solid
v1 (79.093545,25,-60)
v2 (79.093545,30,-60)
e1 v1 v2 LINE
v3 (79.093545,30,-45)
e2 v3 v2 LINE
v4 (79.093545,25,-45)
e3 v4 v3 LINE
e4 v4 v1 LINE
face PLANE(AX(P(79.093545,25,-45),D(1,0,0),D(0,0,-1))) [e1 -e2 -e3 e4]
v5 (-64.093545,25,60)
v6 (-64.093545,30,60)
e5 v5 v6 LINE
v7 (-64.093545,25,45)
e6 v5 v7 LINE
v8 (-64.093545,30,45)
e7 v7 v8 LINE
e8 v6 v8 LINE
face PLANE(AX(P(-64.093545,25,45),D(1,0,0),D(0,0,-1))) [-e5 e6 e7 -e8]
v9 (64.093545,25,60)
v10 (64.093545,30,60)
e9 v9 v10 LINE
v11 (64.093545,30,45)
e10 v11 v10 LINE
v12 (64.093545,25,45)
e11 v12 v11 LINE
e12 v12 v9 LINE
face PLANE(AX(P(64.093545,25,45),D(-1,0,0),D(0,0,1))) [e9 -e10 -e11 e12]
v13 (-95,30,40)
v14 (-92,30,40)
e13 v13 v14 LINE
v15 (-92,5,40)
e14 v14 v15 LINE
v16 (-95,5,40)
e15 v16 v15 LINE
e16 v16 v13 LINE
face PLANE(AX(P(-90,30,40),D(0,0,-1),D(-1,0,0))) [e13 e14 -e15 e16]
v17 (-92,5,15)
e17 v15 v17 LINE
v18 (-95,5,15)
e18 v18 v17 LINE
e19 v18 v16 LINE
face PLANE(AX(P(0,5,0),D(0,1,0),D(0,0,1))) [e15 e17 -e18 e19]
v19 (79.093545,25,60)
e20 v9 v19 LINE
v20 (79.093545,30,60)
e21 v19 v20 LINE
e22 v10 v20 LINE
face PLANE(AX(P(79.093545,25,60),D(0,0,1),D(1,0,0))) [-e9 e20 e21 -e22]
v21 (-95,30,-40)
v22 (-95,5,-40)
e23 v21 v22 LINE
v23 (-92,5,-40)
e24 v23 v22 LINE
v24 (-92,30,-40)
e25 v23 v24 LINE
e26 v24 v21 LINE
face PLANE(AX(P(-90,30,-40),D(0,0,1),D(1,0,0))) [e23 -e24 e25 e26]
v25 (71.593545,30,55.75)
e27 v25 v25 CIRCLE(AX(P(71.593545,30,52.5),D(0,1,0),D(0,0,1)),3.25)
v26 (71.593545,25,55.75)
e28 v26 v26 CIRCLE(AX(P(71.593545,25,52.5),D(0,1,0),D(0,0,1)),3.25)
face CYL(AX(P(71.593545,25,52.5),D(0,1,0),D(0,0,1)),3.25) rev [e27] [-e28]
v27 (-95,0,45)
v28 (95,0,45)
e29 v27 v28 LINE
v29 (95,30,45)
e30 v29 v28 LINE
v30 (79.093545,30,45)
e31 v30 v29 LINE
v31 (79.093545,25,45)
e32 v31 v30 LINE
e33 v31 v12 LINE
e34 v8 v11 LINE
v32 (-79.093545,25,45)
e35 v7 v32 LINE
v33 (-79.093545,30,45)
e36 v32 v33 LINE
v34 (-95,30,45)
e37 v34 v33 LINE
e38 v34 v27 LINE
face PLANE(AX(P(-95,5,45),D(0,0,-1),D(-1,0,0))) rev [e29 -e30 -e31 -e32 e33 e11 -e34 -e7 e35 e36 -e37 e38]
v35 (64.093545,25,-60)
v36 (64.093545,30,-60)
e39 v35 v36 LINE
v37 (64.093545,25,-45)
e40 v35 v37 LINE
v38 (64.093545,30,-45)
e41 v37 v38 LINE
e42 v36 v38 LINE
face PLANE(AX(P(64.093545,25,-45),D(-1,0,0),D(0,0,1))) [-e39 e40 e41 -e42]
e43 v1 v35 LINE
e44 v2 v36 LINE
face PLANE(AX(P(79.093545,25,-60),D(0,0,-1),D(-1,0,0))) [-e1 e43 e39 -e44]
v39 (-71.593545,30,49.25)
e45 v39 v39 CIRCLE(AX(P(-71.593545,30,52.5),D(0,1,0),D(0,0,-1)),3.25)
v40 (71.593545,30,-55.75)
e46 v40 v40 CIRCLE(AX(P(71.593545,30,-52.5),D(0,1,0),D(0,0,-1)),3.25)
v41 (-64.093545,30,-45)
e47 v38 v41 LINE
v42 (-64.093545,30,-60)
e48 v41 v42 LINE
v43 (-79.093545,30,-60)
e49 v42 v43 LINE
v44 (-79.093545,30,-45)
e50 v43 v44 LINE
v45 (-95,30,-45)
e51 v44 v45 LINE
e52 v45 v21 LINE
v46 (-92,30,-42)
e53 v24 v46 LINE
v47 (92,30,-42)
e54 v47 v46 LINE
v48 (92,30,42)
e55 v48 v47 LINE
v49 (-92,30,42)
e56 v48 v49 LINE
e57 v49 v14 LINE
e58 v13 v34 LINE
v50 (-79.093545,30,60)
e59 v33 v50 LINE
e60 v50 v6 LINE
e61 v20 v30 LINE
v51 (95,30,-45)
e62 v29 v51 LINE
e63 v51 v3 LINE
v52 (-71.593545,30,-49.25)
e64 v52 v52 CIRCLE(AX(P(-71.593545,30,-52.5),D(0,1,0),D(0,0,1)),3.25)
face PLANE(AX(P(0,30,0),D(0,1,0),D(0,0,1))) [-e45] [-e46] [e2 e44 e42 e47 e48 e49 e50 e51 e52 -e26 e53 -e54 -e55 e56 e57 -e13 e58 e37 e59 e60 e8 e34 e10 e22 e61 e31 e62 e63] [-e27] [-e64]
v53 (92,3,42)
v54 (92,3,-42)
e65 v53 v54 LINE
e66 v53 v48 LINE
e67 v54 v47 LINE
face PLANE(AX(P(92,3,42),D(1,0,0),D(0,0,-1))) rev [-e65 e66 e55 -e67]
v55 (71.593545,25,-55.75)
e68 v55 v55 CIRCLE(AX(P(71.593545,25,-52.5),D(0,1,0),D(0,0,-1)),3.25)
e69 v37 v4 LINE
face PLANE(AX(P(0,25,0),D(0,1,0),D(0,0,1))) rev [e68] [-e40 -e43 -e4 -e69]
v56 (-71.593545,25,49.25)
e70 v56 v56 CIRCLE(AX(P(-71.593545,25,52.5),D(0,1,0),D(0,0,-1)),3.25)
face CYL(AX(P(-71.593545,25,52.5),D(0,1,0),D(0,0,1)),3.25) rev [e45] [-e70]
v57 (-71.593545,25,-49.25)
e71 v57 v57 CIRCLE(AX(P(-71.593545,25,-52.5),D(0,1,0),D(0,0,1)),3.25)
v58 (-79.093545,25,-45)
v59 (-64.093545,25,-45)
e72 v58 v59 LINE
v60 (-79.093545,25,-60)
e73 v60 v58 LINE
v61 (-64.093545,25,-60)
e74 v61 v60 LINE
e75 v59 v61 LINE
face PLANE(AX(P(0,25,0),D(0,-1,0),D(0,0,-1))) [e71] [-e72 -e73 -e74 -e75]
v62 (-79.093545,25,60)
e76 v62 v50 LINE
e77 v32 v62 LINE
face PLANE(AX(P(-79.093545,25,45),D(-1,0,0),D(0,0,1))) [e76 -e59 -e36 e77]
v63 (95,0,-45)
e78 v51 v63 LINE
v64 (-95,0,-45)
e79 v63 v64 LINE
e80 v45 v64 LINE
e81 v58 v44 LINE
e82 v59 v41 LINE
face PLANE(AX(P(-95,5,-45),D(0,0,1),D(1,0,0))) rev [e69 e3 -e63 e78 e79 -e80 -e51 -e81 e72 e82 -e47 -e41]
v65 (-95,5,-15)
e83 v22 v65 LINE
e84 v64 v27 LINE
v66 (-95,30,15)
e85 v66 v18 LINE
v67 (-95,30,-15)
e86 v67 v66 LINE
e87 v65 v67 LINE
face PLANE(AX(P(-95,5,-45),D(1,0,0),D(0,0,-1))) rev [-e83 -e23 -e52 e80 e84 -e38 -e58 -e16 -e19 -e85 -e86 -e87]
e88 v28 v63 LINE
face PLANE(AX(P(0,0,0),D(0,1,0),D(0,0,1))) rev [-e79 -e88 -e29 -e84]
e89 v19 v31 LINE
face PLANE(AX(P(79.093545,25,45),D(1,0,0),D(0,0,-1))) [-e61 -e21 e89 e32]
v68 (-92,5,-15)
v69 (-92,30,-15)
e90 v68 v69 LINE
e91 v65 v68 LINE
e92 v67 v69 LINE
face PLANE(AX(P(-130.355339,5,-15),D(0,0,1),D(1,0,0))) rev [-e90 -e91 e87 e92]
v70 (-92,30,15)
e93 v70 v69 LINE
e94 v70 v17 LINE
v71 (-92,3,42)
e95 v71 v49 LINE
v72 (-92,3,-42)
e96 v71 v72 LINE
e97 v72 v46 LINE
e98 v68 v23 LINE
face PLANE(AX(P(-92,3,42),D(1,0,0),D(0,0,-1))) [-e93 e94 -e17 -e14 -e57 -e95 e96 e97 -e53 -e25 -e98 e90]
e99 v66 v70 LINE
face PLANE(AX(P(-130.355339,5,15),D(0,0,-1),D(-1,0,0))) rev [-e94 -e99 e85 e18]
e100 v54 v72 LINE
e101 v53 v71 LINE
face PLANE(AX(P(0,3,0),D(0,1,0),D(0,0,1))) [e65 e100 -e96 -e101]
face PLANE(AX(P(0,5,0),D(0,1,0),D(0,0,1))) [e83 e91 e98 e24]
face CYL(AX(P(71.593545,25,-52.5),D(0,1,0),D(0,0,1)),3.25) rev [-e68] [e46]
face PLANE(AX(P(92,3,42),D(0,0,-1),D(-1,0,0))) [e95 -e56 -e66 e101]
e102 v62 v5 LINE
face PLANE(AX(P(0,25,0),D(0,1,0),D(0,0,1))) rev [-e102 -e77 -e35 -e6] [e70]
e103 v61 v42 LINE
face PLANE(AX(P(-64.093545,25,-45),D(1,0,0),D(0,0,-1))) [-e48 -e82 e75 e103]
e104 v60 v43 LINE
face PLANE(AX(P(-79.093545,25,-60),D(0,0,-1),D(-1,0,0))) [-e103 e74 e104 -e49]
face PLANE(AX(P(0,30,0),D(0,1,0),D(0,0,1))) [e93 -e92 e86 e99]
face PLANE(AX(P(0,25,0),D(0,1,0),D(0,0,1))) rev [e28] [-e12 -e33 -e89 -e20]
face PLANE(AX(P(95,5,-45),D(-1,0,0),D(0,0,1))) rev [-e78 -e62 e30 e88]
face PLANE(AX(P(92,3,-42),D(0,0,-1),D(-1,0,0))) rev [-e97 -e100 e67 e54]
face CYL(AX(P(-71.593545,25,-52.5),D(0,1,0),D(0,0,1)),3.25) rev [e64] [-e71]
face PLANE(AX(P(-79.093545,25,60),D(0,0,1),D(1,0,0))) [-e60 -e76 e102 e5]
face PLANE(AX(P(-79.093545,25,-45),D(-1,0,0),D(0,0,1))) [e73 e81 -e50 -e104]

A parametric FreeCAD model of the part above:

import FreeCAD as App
import Part
import Sketcher
from FreeCAD import Vector

doc = App.newDocument("Part")
body = doc.addObject("PartDesign::Body", "Body")

# Sketch on XZ plane
sketch1 = doc.addObject("Sketcher::SketchObject", "Sketch")
body.addObject(sketch1)
sketch1.AttachmentSupport = (doc.XZ_Plane, [""])
sketch1.MapMode = "FlatFace"
sketch1.addGeometry([
    Part.LineSegment(Vector(-95, -45, 0), Vector(-95, 45, 0)),
    Part.LineSegment(Vector(-95, 45, 0), Vector(95, 45, 0)),
    Part.LineSegment(Vector(95, 45, 0), Vector(95, -45, 0)),
    Part.LineSegment(Vector(95, -45, 0), Vector(-95, -45, 0)),
], False)
sketch1.addConstraint([
    Sketcher.Constraint("Coincident", 0, 2, 1, 1),
    Sketcher.Constraint("Coincident", 1, 2, 2, 1),
    Sketcher.Constraint("Coincident", 2, 2, 3, 1),
    Sketcher.Constraint("Coincident", 3, 2, 0, 1),
    Sketcher.Constraint("Vertical", 0),
    Sketcher.Constraint("Horizontal", 1),
    Sketcher.Constraint("Vertical", 2),
    Sketcher.Constraint("Horizontal", 3),
    Sketcher.Constraint("Symmetric", 0, 2, 2, 2, -1, 1),
    Sketcher.Constraint("DistanceX", 1, 1, 1, 2, 190.0),
    Sketcher.Constraint("DistanceY", 0, 1, 0, 2, 90.0),
])
pad1 = doc.addObject("PartDesign::Pad", "Pad")
body.addObject(pad1)
pad1.Profile = sketch1
pad1.Length = 5
pad1.Reversed = True

# Sketch on XZ plane
sketch2 = doc.addObject("Sketcher::SketchObject", "Sketch001")
body.addObject(sketch2)
sketch2.AttachmentSupport = (doc.XZ_Plane, [""])
sketch2.MapMode = "FlatFace"
sketch2.AttachmentOffset = App.Placement(Vector(0, 0, -5), App.Rotation())
sketch2.addGeometry([
    Part.LineSegment(Vector(-95, -45, 0), Vector(-95, 45, 0)),  # 0
    Part.LineSegment(Vector(-95, 45, 0), Vector(95, 45, 0)),  # 1
    Part.LineSegment(Vector(95, 45, 0), Vector(95, -45, 0)),  # 2
    Part.LineSegment(Vector(95, -45, 0), Vector(-95, -45, 0)),  # 3
    Part.LineSegment(Vector(90, 40, 0), Vector(-90, 40, 0)),  # 4
    Part.LineSegment(Vector(-90, 40, 0), Vector(-90, -40, 0)),  # 5
    Part.LineSegment(Vector(-90, -40, 0), Vector(90, -40, 0)),  # 6
    Part.LineSegment(Vector(90, -40, 0), Vector(90, 40, 0)),  # 7
], False)
sketch2.addConstraint([
    Sketcher.Constraint("Coincident", 0, 2, 1, 1),
    Sketcher.Constraint("Coincident", 1, 2, 2, 1),
    Sketcher.Constraint("Coincident", 2, 2, 3, 1),
    Sketcher.Constraint("Coincident", 3, 2, 0, 1),
    Sketcher.Constraint("Coincident", 4, 2, 5, 1),
    Sketcher.Constraint("Coincident", 5, 2, 6, 1),
    Sketcher.Constraint("Coincident", 6, 2, 7, 1),
    Sketcher.Constraint("Coincident", 7, 2, 4, 1),
    Sketcher.Constraint("Vertical", 0),
    Sketcher.Constraint("Horizontal", 1),
    Sketcher.Constraint("Vertical", 2),
    Sketcher.Constraint("Horizontal", 3),
    Sketcher.Constraint("Horizontal", 4),
    Sketcher.Constraint("Vertical", 5),
    Sketcher.Constraint("Horizontal", 6),
    Sketcher.Constraint("Vertical", 7),
    Sketcher.Constraint("Symmetric", 0, 2, 2, 2, -1, 1),
    Sketcher.Constraint("Symmetric", 4, 2, 6, 2, -1, 1),
    Sketcher.Constraint("DistanceX", 1, 1, 1, 2, 190.0),
    Sketcher.Constraint("DistanceX", 4, 2, 4, 1, 180.0),
    Sketcher.Constraint("DistanceY", 0, 1, 0, 2, 90.0),
    Sketcher.Constraint("DistanceY", 5, 2, 5, 1, 80.0),
])
pad2 = doc.addObject("PartDesign::Pad", "Pad001")
body.addObject(pad2)
pad2.Profile = sketch2
pad2.Length = 25
pad2.Reversed = True

# Sketch on YZ plane
sketch3 = doc.addObject("Sketcher::SketchObject", "Sketch002")
body.addObject(sketch3)
sketch3.AttachmentSupport = (doc.YZ_Plane, [""])
sketch3.MapMode = "FlatFace"
sketch3.AttachmentOffset = App.Placement(Vector(0, 0, -90), App.Rotation())
sketch3.addGeometry([
    Part.LineSegment(Vector(30, 40, 0), Vector(5, 40, 0)),  # 0
    Part.LineSegment(Vector(5, 40, 0), Vector(5, 15, 0)),  # 1
    Part.LineSegment(Vector(5, 15, 0), Vector(30, 15, 0)),  # 2
    Part.LineSegment(Vector(30, 15, 0), Vector(30, 40, 0)),  # 3
    Part.LineSegment(Vector(30, -15, 0), Vector(5, -15, 0)),  # 4
    Part.LineSegment(Vector(5, -15, 0), Vector(5, -40, 0)),  # 5
    Part.LineSegment(Vector(5, -40, 0), Vector(30, -40, 0)),  # 6
    Part.LineSegment(Vector(30, -40, 0), Vector(30, -15, 0)),  # 7
], False)
sketch3.addConstraint([
    Sketcher.Constraint("Coincident", 0, 2, 1, 1),
    Sketcher.Constraint("Coincident", 1, 2, 2, 1),
    Sketcher.Constraint("Coincident", 2, 2, 3, 1),
    Sketcher.Constraint("Coincident", 3, 2, 0, 1),
    Sketcher.Constraint("Coincident", 4, 2, 5, 1),
    Sketcher.Constraint("Coincident", 5, 2, 6, 1),
    Sketcher.Constraint("Coincident", 6, 2, 7, 1),
    Sketcher.Constraint("Coincident", 7, 2, 4, 1),
    Sketcher.Constraint("Horizontal", 0),
    Sketcher.Constraint("Vertical", 1),
    Sketcher.Constraint("Horizontal", 2),
    Sketcher.Constraint("Vertical", 3),
    Sketcher.Constraint("Horizontal", 4),
    Sketcher.Constraint("Vertical", 5),
    Sketcher.Constraint("Horizontal", 6),
    Sketcher.Constraint("Vertical", 7),
    Sketcher.Constraint("Symmetric", 1, 2, 4, 2, -1),
    Sketcher.Constraint("Symmetric", 3, 2, 6, 2, -1),
    Sketcher.Constraint("Equal", 6, 1),
    Sketcher.Constraint("DistanceX", 0, 2, 0, 1, 25.0),
    Sketcher.Constraint("DistanceX", -1, 1, 0, 2, 5.0),
    Sketcher.Constraint("DistanceY", -1, 1, 0, 2, 40.0),
])
pocket1 = doc.addObject("PartDesign::Pocket", "Pocket")
body.addObject(pocket1)
pocket1.Profile = sketch3
pocket1.Length = 5

# Sketch on XZ plane
sketch4 = doc.addObject("Sketcher::SketchObject", "Sketch003")
body.addObject(sketch4)
sketch4.AttachmentSupport = (doc.XZ_Plane, [""])
sketch4.MapMode = "FlatFace"
sketch4.AttachmentOffset = App.Placement(Vector(0, 0, -30), App.Rotation())
sketch4.addGeometry([
    Part.LineSegment(Vector(-79.1, -60, 0), Vector(-79.1, -45, 0)),  # 0
    Part.LineSegment(Vector(-79.1, -45, 0), Vector(-64.1, -45, 0)),  # 1
    Part.LineSegment(Vector(-64.1, -45, 0), Vector(-64.1, -60, 0)),  # 2
    Part.LineSegment(Vector(-64.1, -60, 0), Vector(-79.1, -60, 0)),  # 3
    Part.Circle(Vector(-71.6, -52.5, 0), Vector(0, 0, 1), 3.2),  # 4
    Part.LineSegment(Vector(-79.1, 45, 0), Vector(-79.1, 60, 0)),  # 5
    Part.LineSegment(Vector(-79.1, 60, 0), Vector(-64.1, 60, 0)),  # 6
    Part.LineSegment(Vector(-64.1, 60, 0), Vector(-64.1, 45, 0)),  # 7
    Part.LineSegment(Vector(-64.1, 45, 0), Vector(-79.1, 45, 0)),  # 8
    Part.Circle(Vector(-71.6, 52.5, 0), Vector(0, 0, 1), 3.2),  # 9
    Part.LineSegment(Vector(64.1, 45, 0), Vector(64.1, 60, 0)),  # 10
    Part.LineSegment(Vector(64.1, 60, 0), Vector(79.1, 60, 0)),  # 11
    Part.LineSegment(Vector(79.1, 60, 0), Vector(79.1, 45, 0)),  # 12
    Part.LineSegment(Vector(79.1, 45, 0), Vector(64.1, 45, 0)),  # 13
    Part.Circle(Vector(71.6, 52.5, 0), Vector(0, 0, 1), 3.2),  # 14
    Part.LineSegment(Vector(64.1, -60, 0), Vector(64.1, -45, 0)),  # 15
    Part.LineSegment(Vector(64.1, -45, 0), Vector(79.1, -45, 0)),  # 16
    Part.LineSegment(Vector(79.1, -45, 0), Vector(79.1, -60, 0)),  # 17
    Part.LineSegment(Vector(79.1, -60, 0), Vector(64.1, -60, 0)),  # 18
    Part.Circle(Vector(71.6, -52.5, 0), Vector(0, 0, 1), 3.2),  # 19
], False)
sketch4.addConstraint([
    Sketcher.Constraint("Coincident", 0, 2, 1, 1),
    Sketcher.Constraint("Coincident", 1, 2, 2, 1),
    Sketcher.Constraint("Coincident", 2, 2, 3, 1),
    Sketcher.Constraint("Coincident", 3, 2, 0, 1),
    Sketcher.Constraint("Coincident", 5, 2, 6, 1),
    Sketcher.Constraint("Coincident", 6, 2, 7, 1),
    Sketcher.Constraint("Coincident", 7, 2, 8, 1),
    Sketcher.Constraint("Coincident", 8, 2, 5, 1),
    Sketcher.Constraint("Coincident", 10, 2, 11, 1),
    Sketcher.Constraint("Coincident", 11, 2, 12, 1),
    Sketcher.Constraint("Coincident", 12, 2, 13, 1),
    Sketcher.Constraint("Coincident", 13, 2, 10, 1),
    Sketcher.Constraint("Coincident", 15, 2, 16, 1),
    Sketcher.Constraint("Coincident", 16, 2, 17, 1),
    Sketcher.Constraint("Coincident", 17, 2, 18, 1),
    Sketcher.Constraint("Coincident", 18, 2, 15, 1),
    Sketcher.Constraint("Vertical", 0),
    Sketcher.Constraint("Horizontal", 1),
    Sketcher.Constraint("Vertical", 2),
    Sketcher.Constraint("Horizontal", 3),
    Sketcher.Constraint("Vertical", 5),
    Sketcher.Constraint("Horizontal", 6),
    Sketcher.Constraint("Vertical", 7),
    Sketcher.Constraint("Horizontal", 8),
    Sketcher.Constraint("Vertical", 10),
    Sketcher.Constraint("Horizontal", 11),
    Sketcher.Constraint("Vertical", 12),
    Sketcher.Constraint("Horizontal", 13),
    Sketcher.Constraint("Vertical", 15),
    Sketcher.Constraint("Horizontal", 16),
    Sketcher.Constraint("Vertical", 17),
    Sketcher.Constraint("Horizontal", 18),
    Sketcher.Constraint("Equal", 4, 9),
    Sketcher.Constraint("Equal", 9, 14),
    Sketcher.Constraint("Equal", 14, 19),
    Sketcher.Constraint("Symmetric", 4, 3, 14, 3, -1, 1),
    Sketcher.Constraint("Symmetric", 9, 3, 19, 3, -1, 1),
    Sketcher.Constraint("Symmetric", 2, 2, 10, 2, -1, 1),
    Sketcher.Constraint("Symmetric", 0, 2, 12, 2, -1, 1),
    Sketcher.Constraint("Symmetric", 7, 2, 15, 2, -1, 1),
    Sketcher.Constraint("Symmetric", 5, 2, 17, 2, -1, 1),
    Sketcher.Constraint("Symmetric", 9, 3, 14, 3, -2),
    Sketcher.Constraint("Symmetric", 6, 2, 10, 2, -2),
    Sketcher.Constraint("Symmetric", 8, 2, 12, 2, -2),
    Sketcher.Constraint("Equal", 18, 0),
    Sketcher.Constraint("Diameter", 4, 6.5),
    Sketcher.Constraint("DistanceX", 1, 1, 1, 2, 15.0),
    Sketcher.Constraint("DistanceY", 0, 2, -1, 1, 45.0),
    Sketcher.Constraint("DistanceY", 4, 3, 9, 3, 105.0),
    Sketcher.Constraint("DistanceX", 0, 2, 4, 3, 7.5),
    Sketcher.Constraint("DistanceX", 9, 3, 14, 3, 143.18709),
])
pad3 = doc.addObject("PartDesign::Pad", "Pad002")
body.addObject(pad3)
pad3.Profile = sketch4
pad3.Length = 5

# Sketch on XZ plane
sketch5 = doc.addObject("Sketcher::SketchObject", "Sketch004")
body.addObject(sketch5)
sketch5.AttachmentSupport = (doc.XZ_Plane, [""])
sketch5.MapMode = "FlatFace"
sketch5.AttachmentOffset = App.Placement(Vector(0, 0, -30), App.Rotation())
sketch5.addGeometry([
    Part.LineSegment(Vector(-92, -42, 0), Vector(-92, 42, 0)),
    Part.LineSegment(Vector(-92, 42, 0), Vector(92, 42, 0)),
    Part.LineSegment(Vector(92, 42, 0), Vector(92, -42, 0)),
    Part.LineSegment(Vector(92, -42, 0), Vector(-92, -42, 0)),
], False)
sketch5.addConstraint([
    Sketcher.Constraint("Coincident", 0, 2, 1, 1),
    Sketcher.Constraint("Coincident", 1, 2, 2, 1),
    Sketcher.Constraint("Coincident", 2, 2, 3, 1),
    Sketcher.Constraint("Coincident", 3, 2, 0, 1),
    Sketcher.Constraint("Vertical", 0),
    Sketcher.Constraint("Horizontal", 1),
    Sketcher.Constraint("Vertical", 2),
    Sketcher.Constraint("Horizontal", 3),
    Sketcher.Constraint("Symmetric", 0, 2, 2, 2, -1, 1),
    Sketcher.Constraint("DistanceX", 1, 1, 1, 2, 184.0),
    Sketcher.Constraint("DistanceY", 0, 1, 0, 2, 84.0),
])
pocket2 = doc.addObject("PartDesign::Pocket", "Pocket001")
body.addObject(pocket2)
pocket2.Profile = sketch5
pocket2.Length = 27
pocket2.Reversed = True

doc.recompute()
